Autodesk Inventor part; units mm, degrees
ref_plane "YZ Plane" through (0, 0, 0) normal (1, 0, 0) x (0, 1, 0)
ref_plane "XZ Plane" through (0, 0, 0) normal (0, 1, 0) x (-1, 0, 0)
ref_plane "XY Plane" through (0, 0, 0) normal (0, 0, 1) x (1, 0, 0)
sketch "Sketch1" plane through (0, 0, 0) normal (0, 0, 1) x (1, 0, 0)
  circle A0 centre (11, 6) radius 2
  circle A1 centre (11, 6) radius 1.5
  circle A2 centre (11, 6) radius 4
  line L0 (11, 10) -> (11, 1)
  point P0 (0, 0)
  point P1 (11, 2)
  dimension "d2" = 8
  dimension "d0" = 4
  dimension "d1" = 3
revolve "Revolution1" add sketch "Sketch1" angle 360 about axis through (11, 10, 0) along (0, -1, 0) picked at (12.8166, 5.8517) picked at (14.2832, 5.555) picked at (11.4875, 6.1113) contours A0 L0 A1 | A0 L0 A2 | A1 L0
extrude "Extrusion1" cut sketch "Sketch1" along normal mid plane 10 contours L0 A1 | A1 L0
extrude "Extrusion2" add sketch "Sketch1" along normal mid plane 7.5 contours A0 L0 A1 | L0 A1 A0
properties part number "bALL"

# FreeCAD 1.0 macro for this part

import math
import FreeCAD as App
import Part
import Sketcher
Q = App.Units.Quantity

doc = App.newDocument("Part")
params = doc.addObject("Spreadsheet::Sheet", "Params")
for row, (alias, value) in enumerate([
    ("sketch1_radius", "4 mm"),
    ("revolution_angle", "360 deg"),
    ("sketch2_diameter", "3 mm"),
    ("pocket1_length", "10 mm"),
    ("sketch3_diameter", "4 mm"),
    ("sketch3_diameter2", "3 mm"),
    ("pad1_length", "7.5 mm"),
], start=1):
    params.set(f"A{row}", alias)
    params.set(f"B{row}", "=" + value)
    params.setAlias(f"B{row}", alias)

body = doc.addObject("PartDesign::Body", "Body")

# Sketch on XY plane
sketch1 = body.newObject("Sketcher::SketchObject", "Sketch")
sketch1.AttachmentSupport = (doc.getObject("XY_Plane"), [""])
sketch1.MapMode = "FlatFace"
sketch1.addGeometry([
    Part.ArcOfCircle(Part.Circle(App.Vector(11, 6, 0), App.Vector(0, 0, 1), 4), math.radians(-90), math.radians(90)),
    Part.LineSegment(App.Vector(11, 10, 0), App.Vector(11, 2, 0)),
], False)
sketch1.addGeometry(Part.LineSegment(App.Vector(11, 10, 0), App.Vector(11, 2, 0)), True)  # axis
sketch1.addConstraint([
    Sketcher.Constraint("Coincident", 0, 1, 1, 2),
    Sketcher.Constraint("Coincident", 1, 1, 0, 2),
    Sketcher.Constraint("Vertical", 1),
    Sketcher.Constraint("Vertical", 2),
    Sketcher.Constraint("Coincident", 2, 1, 1, 1),
    Sketcher.Constraint("Equal", 1, 2),
    Sketcher.Constraint("Radius", 0, Q("4 mm")),
    Sketcher.Constraint("DistanceX", -1, 1, 0, 3, Q("11 mm")),
    Sketcher.Constraint("DistanceY", -1, 1, 0, 3, Q("6 mm")),
    Sketcher.Constraint("DistanceX", -1, 1, 0, 1, Q("11 mm")),
])
sketch1.setExpression("Constraints[6]", "Params.sketch1_radius")
revolution = body.newObject("PartDesign::Revolution", "Revolution")
revolution.Profile = sketch1
revolution.ReferenceAxis = (sketch1, ["Axis0"])
revolution.setExpression("Angle", "Params.revolution_angle")

# Sketch on XY plane
sketch2 = body.newObject("Sketcher::SketchObject", "Sketch001")
sketch2.AttachmentSupport = (doc.getObject("XY_Plane"), [""])
sketch2.MapMode = "FlatFace"
sketch2.addGeometry(Part.Circle(App.Vector(11, 6, 0), App.Vector(0, 0, 1), 1.5), False)
sketch2.addConstraint([
    Sketcher.Constraint("Diameter", 0, Q("3 mm")),
    Sketcher.Constraint("DistanceX", -1, 1, 0, 3, Q("11 mm")),
    Sketcher.Constraint("DistanceY", -1, 1, 0, 3, Q("6 mm")),
])
sketch2.setExpression("Constraints[0]", "Params.sketch2_diameter")
pocket1 = body.newObject("PartDesign::Pocket", "Pocket")
pocket1.Profile = sketch2
pocket1.setExpression("Length", "Params.pocket1_length")
pocket1.Midplane = True

# Sketch on XY plane
sketch3 = body.newObject("Sketcher::SketchObject", "Sketch002")
sketch3.AttachmentSupport = (doc.getObject("XY_Plane"), [""])
sketch3.MapMode = "FlatFace"
sketch3.addGeometry([
    Part.Circle(App.Vector(11, 6, 0), App.Vector(0, 0, 1), 2),
    Part.Circle(App.Vector(11, 6, 0), App.Vector(0, 0, 1), 1.5),
], False)
sketch3.addConstraint([
    Sketcher.Constraint("Coincident", 1, 3, 0, 3),
    Sketcher.Constraint("Diameter", 0, Q("4 mm")),
    Sketcher.Constraint("Diameter", 1, Q("3 mm")),
    Sketcher.Constraint("DistanceX", -1, 1, 0, 3, Q("11 mm")),
    Sketcher.Constraint("DistanceY", -1, 1, 0, 3, Q("6 mm")),
])
sketch3.setExpression("Constraints[1]", "Params.sketch3_diameter")
sketch3.setExpression("Constraints[2]", "Params.sketch3_diameter2")
pad1 = body.newObject("PartDesign::Pad", "Pad")
pad1.Profile = sketch3
pad1.setExpression("Length", "Params.pad1_length")
pad1.Midplane = True

doc.recompute()
